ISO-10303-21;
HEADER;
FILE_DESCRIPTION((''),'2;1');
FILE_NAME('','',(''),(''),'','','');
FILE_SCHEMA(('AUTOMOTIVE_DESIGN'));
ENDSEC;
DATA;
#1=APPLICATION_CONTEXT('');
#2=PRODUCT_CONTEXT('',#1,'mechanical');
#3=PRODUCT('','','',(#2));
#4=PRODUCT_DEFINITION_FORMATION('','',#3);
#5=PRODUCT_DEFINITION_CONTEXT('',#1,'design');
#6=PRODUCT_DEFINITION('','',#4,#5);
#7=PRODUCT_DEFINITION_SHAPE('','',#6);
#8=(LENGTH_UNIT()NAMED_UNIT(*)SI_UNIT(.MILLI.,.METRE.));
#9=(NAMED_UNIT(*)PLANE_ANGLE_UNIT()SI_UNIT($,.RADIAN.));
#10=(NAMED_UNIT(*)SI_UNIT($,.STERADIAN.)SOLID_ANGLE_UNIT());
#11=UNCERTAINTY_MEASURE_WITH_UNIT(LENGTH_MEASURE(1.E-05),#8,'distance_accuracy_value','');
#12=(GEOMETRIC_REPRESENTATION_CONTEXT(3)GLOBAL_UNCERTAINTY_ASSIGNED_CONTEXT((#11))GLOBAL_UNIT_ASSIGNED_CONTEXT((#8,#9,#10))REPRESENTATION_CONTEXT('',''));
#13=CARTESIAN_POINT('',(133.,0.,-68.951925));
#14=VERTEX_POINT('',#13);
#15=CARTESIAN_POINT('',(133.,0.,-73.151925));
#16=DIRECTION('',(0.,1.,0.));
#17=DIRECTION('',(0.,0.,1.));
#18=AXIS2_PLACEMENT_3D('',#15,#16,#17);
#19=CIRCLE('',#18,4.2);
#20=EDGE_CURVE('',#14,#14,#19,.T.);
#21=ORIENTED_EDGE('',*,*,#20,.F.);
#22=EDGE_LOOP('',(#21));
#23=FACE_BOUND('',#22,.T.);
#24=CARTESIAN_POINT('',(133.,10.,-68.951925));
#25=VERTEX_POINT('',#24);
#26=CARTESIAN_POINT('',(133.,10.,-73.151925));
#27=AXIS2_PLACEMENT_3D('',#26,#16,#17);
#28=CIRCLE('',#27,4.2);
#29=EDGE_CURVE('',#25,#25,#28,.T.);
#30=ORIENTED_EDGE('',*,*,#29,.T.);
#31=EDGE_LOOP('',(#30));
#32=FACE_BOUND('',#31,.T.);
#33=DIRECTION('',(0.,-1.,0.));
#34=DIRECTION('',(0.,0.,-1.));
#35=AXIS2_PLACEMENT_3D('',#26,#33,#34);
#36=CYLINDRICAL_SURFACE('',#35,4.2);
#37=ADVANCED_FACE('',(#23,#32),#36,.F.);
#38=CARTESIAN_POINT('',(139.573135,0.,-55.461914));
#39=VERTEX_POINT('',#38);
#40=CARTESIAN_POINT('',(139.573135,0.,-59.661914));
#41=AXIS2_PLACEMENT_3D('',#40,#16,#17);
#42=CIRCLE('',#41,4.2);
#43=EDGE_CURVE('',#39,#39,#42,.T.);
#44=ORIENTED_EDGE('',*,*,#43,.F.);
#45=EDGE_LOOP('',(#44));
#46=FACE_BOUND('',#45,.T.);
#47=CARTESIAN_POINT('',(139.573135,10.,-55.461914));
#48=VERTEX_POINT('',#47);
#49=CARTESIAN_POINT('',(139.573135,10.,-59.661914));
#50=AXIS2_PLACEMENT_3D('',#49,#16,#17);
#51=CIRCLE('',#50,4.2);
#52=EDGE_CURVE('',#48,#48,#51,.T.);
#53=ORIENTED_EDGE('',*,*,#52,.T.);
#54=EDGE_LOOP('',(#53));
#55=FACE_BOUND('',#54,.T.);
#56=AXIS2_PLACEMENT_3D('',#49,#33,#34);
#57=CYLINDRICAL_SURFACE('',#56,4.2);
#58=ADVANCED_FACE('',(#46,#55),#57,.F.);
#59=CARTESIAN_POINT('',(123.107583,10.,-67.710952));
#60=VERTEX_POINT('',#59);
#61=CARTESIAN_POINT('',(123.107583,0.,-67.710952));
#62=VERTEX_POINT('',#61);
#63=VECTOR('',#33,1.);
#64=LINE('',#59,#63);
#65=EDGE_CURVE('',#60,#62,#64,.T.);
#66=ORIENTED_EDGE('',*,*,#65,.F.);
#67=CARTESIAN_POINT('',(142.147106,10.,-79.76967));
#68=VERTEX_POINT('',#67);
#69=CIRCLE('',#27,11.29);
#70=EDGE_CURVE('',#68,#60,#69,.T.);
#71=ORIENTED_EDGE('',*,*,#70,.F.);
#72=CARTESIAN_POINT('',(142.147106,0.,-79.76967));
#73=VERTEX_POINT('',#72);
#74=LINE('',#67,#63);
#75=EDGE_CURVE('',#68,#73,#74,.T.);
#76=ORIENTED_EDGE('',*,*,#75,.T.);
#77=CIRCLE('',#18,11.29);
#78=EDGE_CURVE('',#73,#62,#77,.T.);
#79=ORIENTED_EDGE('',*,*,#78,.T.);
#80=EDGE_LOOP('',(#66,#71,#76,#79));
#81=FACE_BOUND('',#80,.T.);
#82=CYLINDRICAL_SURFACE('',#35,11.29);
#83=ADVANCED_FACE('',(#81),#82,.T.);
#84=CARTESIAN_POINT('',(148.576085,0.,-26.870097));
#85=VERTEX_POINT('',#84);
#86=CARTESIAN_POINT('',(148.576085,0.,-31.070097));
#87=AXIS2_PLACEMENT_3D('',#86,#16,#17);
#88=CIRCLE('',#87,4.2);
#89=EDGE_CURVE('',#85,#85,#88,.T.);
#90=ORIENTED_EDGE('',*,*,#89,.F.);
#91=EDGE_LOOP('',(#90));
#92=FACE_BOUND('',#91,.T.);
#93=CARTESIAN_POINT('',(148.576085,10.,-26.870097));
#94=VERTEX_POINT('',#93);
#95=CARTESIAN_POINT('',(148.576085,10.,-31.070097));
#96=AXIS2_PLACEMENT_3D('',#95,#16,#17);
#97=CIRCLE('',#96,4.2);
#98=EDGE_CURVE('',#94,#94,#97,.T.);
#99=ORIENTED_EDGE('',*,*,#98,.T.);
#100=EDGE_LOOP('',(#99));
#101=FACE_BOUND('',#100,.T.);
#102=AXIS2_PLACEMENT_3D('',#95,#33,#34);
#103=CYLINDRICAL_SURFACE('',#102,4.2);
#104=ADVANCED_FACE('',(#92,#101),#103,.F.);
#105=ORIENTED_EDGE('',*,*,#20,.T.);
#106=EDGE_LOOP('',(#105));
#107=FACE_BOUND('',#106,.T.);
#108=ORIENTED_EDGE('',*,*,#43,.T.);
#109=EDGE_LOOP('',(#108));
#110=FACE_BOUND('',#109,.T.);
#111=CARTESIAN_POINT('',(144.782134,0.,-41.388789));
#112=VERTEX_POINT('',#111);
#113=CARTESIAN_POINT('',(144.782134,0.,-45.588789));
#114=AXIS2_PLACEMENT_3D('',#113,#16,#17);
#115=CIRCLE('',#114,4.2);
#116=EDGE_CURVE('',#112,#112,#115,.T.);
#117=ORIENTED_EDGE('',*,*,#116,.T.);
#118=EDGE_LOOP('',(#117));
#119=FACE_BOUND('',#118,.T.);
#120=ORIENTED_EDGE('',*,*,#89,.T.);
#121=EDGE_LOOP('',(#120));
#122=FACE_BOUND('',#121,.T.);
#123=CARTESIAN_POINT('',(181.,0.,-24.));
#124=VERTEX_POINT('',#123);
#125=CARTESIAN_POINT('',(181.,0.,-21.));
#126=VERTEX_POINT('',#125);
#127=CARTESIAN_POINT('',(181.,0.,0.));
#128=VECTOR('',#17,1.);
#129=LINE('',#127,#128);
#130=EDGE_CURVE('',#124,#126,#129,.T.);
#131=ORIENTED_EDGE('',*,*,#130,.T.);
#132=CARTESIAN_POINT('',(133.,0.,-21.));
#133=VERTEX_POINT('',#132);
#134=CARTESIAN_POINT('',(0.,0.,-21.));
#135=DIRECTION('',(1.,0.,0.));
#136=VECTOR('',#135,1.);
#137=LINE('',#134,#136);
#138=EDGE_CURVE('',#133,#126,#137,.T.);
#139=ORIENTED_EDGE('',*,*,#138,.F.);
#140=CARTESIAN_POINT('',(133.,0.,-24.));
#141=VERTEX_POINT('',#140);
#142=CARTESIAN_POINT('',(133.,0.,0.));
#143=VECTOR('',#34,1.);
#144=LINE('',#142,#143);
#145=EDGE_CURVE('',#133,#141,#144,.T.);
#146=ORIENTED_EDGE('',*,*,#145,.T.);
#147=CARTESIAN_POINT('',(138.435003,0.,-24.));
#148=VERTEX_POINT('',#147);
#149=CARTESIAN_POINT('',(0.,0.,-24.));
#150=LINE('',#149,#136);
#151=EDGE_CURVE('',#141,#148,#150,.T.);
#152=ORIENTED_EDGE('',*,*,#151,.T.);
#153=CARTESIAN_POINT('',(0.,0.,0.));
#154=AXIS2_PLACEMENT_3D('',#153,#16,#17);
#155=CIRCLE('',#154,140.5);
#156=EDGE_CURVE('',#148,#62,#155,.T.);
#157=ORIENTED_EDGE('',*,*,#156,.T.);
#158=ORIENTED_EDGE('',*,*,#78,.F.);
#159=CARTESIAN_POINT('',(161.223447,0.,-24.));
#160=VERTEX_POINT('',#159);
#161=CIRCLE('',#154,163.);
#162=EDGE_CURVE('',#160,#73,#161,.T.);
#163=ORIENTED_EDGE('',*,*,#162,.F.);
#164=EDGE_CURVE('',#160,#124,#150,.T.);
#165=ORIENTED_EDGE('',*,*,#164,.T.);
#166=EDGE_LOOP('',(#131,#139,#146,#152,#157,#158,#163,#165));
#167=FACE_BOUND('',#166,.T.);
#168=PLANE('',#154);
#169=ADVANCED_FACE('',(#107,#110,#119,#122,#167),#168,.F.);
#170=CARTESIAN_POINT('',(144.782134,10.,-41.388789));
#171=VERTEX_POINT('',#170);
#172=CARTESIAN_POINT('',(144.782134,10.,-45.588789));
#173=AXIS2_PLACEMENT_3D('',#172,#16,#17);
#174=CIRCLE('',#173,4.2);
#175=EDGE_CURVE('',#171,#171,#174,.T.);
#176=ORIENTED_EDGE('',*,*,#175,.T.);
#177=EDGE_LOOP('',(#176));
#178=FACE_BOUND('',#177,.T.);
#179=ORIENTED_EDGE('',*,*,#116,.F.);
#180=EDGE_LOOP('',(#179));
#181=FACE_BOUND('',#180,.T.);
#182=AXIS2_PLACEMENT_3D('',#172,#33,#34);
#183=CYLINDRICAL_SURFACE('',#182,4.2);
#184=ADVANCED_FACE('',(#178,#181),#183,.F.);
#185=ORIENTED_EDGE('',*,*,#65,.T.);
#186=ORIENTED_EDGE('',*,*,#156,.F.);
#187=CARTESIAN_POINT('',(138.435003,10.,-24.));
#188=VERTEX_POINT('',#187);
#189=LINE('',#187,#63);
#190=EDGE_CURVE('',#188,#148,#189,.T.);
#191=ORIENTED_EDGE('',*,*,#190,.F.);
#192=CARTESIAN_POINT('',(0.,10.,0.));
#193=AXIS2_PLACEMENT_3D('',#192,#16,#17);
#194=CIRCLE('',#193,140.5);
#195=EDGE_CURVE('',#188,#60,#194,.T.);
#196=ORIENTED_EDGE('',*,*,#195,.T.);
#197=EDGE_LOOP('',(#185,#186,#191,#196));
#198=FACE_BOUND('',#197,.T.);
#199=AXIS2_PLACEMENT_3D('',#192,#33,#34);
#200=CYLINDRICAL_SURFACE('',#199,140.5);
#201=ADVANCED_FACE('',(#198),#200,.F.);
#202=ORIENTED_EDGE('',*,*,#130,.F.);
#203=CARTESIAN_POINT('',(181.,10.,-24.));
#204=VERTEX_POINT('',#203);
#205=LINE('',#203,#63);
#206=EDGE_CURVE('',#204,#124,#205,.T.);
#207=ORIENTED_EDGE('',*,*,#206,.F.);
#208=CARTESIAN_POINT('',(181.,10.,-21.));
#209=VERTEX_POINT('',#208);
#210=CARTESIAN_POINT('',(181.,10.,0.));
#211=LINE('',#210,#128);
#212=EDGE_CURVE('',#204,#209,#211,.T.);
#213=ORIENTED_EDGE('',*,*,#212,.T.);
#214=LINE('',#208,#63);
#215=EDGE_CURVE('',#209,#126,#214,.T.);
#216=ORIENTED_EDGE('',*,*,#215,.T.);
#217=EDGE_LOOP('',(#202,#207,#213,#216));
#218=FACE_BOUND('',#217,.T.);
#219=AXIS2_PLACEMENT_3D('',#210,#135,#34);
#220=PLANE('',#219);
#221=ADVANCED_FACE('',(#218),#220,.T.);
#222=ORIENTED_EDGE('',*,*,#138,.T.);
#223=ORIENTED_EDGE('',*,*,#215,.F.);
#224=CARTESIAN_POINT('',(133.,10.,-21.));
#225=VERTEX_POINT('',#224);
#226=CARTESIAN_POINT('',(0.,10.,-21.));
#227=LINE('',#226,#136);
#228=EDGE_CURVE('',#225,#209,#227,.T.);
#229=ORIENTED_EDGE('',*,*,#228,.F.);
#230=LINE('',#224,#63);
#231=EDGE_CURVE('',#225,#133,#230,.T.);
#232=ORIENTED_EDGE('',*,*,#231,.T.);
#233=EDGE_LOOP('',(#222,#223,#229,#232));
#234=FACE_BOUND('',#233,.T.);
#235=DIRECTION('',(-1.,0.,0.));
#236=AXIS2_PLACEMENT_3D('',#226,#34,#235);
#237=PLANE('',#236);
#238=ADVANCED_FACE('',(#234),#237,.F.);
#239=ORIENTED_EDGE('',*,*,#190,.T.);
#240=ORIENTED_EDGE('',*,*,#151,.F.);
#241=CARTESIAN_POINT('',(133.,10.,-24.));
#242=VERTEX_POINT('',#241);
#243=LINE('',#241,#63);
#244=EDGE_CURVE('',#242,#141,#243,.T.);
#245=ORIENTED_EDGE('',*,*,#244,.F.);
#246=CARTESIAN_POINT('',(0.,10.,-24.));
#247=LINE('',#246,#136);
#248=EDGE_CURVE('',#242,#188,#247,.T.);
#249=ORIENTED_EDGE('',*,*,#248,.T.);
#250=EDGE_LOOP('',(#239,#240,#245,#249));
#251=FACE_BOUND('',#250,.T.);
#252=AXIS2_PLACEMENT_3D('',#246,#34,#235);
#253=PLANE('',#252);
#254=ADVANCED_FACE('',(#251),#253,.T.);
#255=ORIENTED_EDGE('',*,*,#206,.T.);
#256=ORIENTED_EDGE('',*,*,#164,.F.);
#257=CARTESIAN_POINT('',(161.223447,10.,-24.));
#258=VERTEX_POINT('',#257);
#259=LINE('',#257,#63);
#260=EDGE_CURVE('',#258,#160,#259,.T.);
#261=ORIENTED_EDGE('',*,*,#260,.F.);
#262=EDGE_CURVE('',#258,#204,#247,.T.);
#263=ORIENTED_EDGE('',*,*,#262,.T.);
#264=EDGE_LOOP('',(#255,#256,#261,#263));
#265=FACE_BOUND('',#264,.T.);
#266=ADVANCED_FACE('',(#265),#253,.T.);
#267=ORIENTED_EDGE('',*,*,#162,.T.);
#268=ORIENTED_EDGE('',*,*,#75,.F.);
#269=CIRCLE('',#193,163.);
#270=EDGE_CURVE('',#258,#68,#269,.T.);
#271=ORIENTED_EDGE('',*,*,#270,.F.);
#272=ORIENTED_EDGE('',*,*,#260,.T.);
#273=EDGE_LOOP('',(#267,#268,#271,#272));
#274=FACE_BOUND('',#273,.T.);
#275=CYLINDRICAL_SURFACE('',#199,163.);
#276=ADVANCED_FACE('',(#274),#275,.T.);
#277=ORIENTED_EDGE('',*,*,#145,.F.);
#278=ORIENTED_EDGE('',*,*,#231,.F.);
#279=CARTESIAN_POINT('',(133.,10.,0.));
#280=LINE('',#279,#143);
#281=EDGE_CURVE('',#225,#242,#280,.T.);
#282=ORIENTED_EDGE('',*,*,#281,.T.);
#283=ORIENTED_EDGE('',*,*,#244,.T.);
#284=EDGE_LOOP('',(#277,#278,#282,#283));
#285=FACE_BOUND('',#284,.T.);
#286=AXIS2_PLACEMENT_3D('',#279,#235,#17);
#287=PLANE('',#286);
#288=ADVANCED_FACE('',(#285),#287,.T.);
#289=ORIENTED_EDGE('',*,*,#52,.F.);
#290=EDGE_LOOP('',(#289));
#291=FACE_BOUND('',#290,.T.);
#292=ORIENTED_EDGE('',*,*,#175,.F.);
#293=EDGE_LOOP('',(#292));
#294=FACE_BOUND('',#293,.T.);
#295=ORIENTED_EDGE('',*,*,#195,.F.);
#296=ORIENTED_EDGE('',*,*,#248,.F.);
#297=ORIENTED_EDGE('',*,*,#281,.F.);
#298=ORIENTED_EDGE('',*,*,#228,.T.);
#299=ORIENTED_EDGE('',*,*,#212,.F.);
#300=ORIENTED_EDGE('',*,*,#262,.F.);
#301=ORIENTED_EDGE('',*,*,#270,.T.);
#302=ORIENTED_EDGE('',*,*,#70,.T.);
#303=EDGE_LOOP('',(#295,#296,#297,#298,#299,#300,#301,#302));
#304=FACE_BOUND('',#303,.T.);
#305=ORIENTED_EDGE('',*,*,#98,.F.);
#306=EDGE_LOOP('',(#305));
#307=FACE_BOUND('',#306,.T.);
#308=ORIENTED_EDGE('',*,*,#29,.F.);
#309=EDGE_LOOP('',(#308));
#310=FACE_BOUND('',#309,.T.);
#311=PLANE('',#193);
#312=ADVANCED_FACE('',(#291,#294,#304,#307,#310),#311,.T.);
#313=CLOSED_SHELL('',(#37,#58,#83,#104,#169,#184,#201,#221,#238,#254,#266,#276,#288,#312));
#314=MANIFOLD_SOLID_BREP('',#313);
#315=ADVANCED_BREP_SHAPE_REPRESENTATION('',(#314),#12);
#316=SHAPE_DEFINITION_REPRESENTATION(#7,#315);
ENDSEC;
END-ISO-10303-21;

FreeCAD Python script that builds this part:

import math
import FreeCAD as App
import Part
import Sketcher
from FreeCAD import Vector

doc = App.newDocument("Part")
params = doc.addObject("Spreadsheet::Sheet", "Params")
for row, (alias, value) in enumerate([
    ("sketch1_radius", "163 mm"),
    ("sketch1_diameter", "8.4 mm"),
    ("sketch1_radius2", "140.5 mm"),
    ("sketch1_width", "48 mm"),
    ("sketch1_height", "3 mm"),
    ("pad1_length", "10 mm"),
], start=1):
    params.set(f"A{row}", alias)
    params.set(f"B{row}", "=" + value)
    params.setAlias(f"B{row}", alias)

body = doc.addObject("PartDesign::Body", "Body")

sketch1 = body.newObject("Sketcher::SketchObject", "Sketch")
sketch1.AttachmentSupport = (doc.getObject("XZ_Plane"), [""])
sketch1.MapMode = "FlatFace"
sketch1.addGeometry(Part.LineSegment(Vector(133, -24, 0), Vector(133, -21, 0)), False)
sketch1.addGeometry(Part.LineSegment(Vector(133, -21, 0), Vector(181, -21, 0)), False)
sketch1.addGeometry(Part.LineSegment(Vector(181, -21, 0), Vector(181, -24, 0)), False)
sketch1.addGeometry(Part.LineSegment(Vector(181, -24, 0), Vector(161.2, -24, 0)), False)
sketch1.addGeometry(Part.ArcOfCircle(Part.Circle(Vector(0, 0, 0), Vector(0, 0, 1), 163), math.radians(-28.32), math.radians(-8.47)), False)
sketch1.addGeometry(Part.ArcOfCircle(Part.Circle(Vector(0, 0, 0), Vector(0, 0, 1), 163), math.radians(-29.3), math.radians(-28.32)), False)
sketch1.addGeometry(Part.ArcOfCircle(Part.Circle(Vector(133, -73.2, 0), Vector(0, 0, 1), 11.3), math.radians(151), math.radians(324)), False)
sketch1.addGeometry(Part.ArcOfCircle(Part.Circle(Vector(0, 0, 0), Vector(0, 0, 1), 140.5), math.radians(-28.81), math.radians(-9.84)), False)
sketch1.addGeometry(Part.LineSegment(Vector(138.4, -24, 0), Vector(133, -24, 0)), False)
sketch1.addGeometry(Part.Circle(Vector(148.6, -31.1, 0), Vector(0, 0, 1), 4.2), False)
sketch1.addGeometry(Part.Circle(Vector(144.8, -45.6, 0), Vector(0, 0, 1), 4.2), False)
sketch1.addGeometry(Part.Circle(Vector(139.6, -59.7, 0), Vector(0, 0, 1), 4.2), False)
sketch1.addGeometry(Part.ArcOfCircle(Part.Circle(Vector(133, -73.2, 0), Vector(0, 0, 1), 4.2), math.radians(0), math.radians(151)), False)
sketch1.addGeometry(Part.ArcOfCircle(Part.Circle(Vector(133, -73.2, 0), Vector(0, 0, 1), 4.2), math.radians(151), math.radians(331)), False)
sketch1.addGeometry(Part.ArcOfCircle(Part.Circle(Vector(133, -73.2, 0), Vector(0, 0, 1), 4.2), math.radians(-29), math.radians(0)), False)
sketch1.addConstraint(Sketcher.Constraint("Coincident", 0, 2, 1, 1))
sketch1.addConstraint(Sketcher.Constraint("Coincident", 1, 2, 2, 1))
sketch1.addConstraint(Sketcher.Constraint("Coincident", 2, 2, 3, 1))
sketch1.addConstraint(Sketcher.Constraint("Coincident", 3, 2, 4, 2))
sketch1.addConstraint(Sketcher.Constraint("Tangent", 4, 1, 5, 2))
sketch1.addConstraint(Sketcher.Constraint("Coincident", 5, 1, 6, 2))
sketch1.addConstraint(Sketcher.Constraint("Tangent", 6, 1, 7, 1))
sketch1.addConstraint(Sketcher.Constraint("Coincident", 7, 2, 8, 1))
sketch1.addConstraint(Sketcher.Constraint("Coincident", 8, 2, 0, 1))
sketch1.addConstraint(Sketcher.Constraint("Tangent", 12, 2, 13, 1))
sketch1.addConstraint(Sketcher.Constraint("Tangent", 13, 2, 14, 1))
sketch1.addConstraint(Sketcher.Constraint("Tangent", 14, 2, 12, 1))
sketch1.addConstraint(Sketcher.Constraint("Vertical", 0))
sketch1.addConstraint(Sketcher.Constraint("Horizontal", 1))
sketch1.addConstraint(Sketcher.Constraint("Vertical", 2))
sketch1.addConstraint(Sketcher.Constraint("Horizontal", 3))
sketch1.addConstraint(Sketcher.Constraint("Horizontal", 8))
sketch1.addConstraint(Sketcher.Constraint("Coincident", 4, 3, -1, 1))
sketch1.addConstraint(Sketcher.Constraint("Coincident", 7, 3, -1, 1))
sketch1.addConstraint(Sketcher.Constraint("Coincident", 12, 3, 6, 3))
sketch1.addConstraint(Sketcher.Constraint("Equal", 9, 10))
sketch1.addConstraint(Sketcher.Constraint("Equal", 10, 11))
sketch1.addConstraint(Sketcher.Constraint("Equal", 11, 12))
sketch1.addConstraint(Sketcher.Constraint("PointOnObject", 5, 3, -1))
sketch1.addConstraint(Sketcher.Constraint("Horizontal", 3, 2, 7, 2))
sketch1.addConstraint(Sketcher.Constraint("Horizontal", 13, 3, 14, 2))
sketch1.addConstraint(Sketcher.Constraint("Vertical", 14, 3, 0, 2))
sketch1.addConstraint(Sketcher.Constraint("Radius", 4, 163.0))
sketch1.addConstraint(Sketcher.Constraint("Diameter", 9, 8.4))
sketch1.addConstraint(Sketcher.Constraint("Radius", 7, 140.5))
sketch1.addConstraint(Sketcher.Constraint("DistanceX", 1, 1, 1, 2, 48.0))
sketch1.addConstraint(Sketcher.Constraint("DistanceY", 0, 1, 0, 2, 3.0))
sketch1.addConstraint(Sketcher.Constraint("Radius", 6, 11.29))
sketch1.addConstraint(Sketcher.Constraint("DistanceX", -1, 1, 6, 3, 133.0))
sketch1.addConstraint(Sketcher.Constraint("DistanceY", 0, 2, -1, 1, 21.0))
sketch1.addConstraint(Sketcher.Constraint("DistanceX", 11, 3, 10, 3, 5.208999))
sketch1.addConstraint(Sketcher.Constraint("DistanceY", 4, 1, -1, 1, 77.333301))
sketch1.addConstraint(Sketcher.Constraint("DistanceY", 14, 3, 12, 2, 2.0241))
sketch1.addConstraint(Sketcher.Constraint("DistanceY", 13, 2, 13, 3, 2.0241))
sketch1.addConstraint(Sketcher.Constraint("DistanceY", 10, 3, -1, 1, 45.588789))
sketch1.addConstraint(Sketcher.Constraint("DistanceX", 10, 3, 9, 3, 3.793951))
sketch1.addConstraint(Sketcher.Constraint("DistanceX", 5, 3, 10, 3, 144.782131))
sketch1.addConstraint(Sketcher.Constraint("DistanceY", 6, 3, 11, 3, 13.490011))
sketch1.addConstraint(Sketcher.Constraint("DistanceY", 9, 3, -1, 1, 31.070097))
sketch1.setExpression("Constraints[27]", "Params.sketch1_radius")
sketch1.setExpression("Constraints[28]", "Params.sketch1_diameter")
sketch1.setExpression("Constraints[29]", "Params.sketch1_radius2")
sketch1.setExpression("Constraints[30]", "Params.sketch1_width")
sketch1.setExpression("Constraints[31]", "Params.sketch1_height")
pad1 = body.newObject("PartDesign::Pad", "Pad")
pad1.Profile = sketch1
pad1.setExpression("Length", "Params.pad1_length")
pad1.Reversed = True

doc.recompute()
